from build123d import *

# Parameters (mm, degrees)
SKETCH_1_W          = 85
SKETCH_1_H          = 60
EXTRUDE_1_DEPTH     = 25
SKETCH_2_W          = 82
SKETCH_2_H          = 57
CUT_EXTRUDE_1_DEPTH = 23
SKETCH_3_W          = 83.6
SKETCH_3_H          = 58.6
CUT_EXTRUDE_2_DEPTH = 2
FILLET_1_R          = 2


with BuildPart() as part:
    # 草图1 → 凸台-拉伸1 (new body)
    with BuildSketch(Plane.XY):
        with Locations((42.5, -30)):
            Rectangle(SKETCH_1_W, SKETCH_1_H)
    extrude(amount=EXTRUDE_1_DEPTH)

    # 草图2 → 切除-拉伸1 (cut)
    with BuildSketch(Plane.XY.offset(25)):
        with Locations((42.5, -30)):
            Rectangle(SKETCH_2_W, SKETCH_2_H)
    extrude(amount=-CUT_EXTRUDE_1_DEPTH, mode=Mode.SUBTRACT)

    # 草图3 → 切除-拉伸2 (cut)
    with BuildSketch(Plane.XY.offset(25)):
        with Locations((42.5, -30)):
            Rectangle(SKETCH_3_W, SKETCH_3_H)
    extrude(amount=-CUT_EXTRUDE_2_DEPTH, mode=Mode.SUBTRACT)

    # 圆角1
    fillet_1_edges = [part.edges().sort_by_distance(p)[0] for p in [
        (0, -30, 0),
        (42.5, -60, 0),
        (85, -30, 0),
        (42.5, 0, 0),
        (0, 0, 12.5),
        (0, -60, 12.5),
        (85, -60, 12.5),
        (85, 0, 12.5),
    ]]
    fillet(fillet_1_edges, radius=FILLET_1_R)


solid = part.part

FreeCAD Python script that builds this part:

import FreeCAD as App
import Part
import Sketcher

V = App.Vector


def edges_at(feature, points):
    """Names of the edges that pass closest to the given points."""
    edges = feature.Shape.Edges
    near = lambda p: min(range(len(edges)), key=lambda i: edges[i].distToShape(Part.Vertex(*p))[0])
    return sorted({f"Edge{near(p) + 1}" for p in points})


def add_polygon(sketch, points):
    """Adds a closed chain of lines whose ends are joined by coincident constraints."""
    first, n = sketch.GeometryCount, len(points)
    for a, b in zip(points, points[1:] + points[:1]):
        sketch.addGeometry(Part.LineSegment(App.Vector(*a, 0), App.Vector(*b, 0)), False)
    for i in range(n):
        sketch.addConstraint(Sketcher.Constraint("Coincident", first + i, 2, first + (i + 1) % n, 1))

doc = App.newDocument("Part")
body = doc.addObject("PartDesign::Body", "Body")

# Sketch on XY plane
sketch1 = body.newObject("Sketcher::SketchObject", "Sketch")
sketch1.AttachmentSupport = (doc.getObject("XY_Plane"), [""])
sketch1.MapMode = "FlatFace"
add_polygon(sketch1, [(0, 0), (0, -60), (85, -60), (85, 0)])  # lines 0-3
sketch1.addConstraint([
    Sketcher.Constraint("Vertical", 0),
    Sketcher.Constraint("Horizontal", 1),
    Sketcher.Constraint("Vertical", 2),
    Sketcher.Constraint("Horizontal", 3),
    Sketcher.Constraint("Coincident", 3, 2, -1, 1),
    Sketcher.Constraint("DistanceX", 1, 1, 1, 2, 85.0),
    Sketcher.Constraint("DistanceY", 0, 2, 0, 1, 60.0),
])
pad1 = body.newObject("PartDesign::Pad", "Pad")
pad1.Profile = sketch1
pad1.Length = 25

# Sketch on XY plane
sketch2 = body.newObject("Sketcher::SketchObject", "Sketch001")
sketch2.AttachmentSupport = (doc.getObject("XY_Plane"), [""])
sketch2.MapMode = "FlatFace"
sketch2.AttachmentOffset = App.Placement(V(0, 0, 25), App.Rotation())
add_polygon(sketch2, [(1.5, -1.5), (1.5, -58.5), (83.5, -58.5), (83.5, -1.5)])  # lines 0-3
sketch2.addConstraint([
    Sketcher.Constraint("Vertical", 0),
    Sketcher.Constraint("Horizontal", 1),
    Sketcher.Constraint("Vertical", 2),
    Sketcher.Constraint("Horizontal", 3),
    Sketcher.Constraint("DistanceX", 1, 1, 1, 2, 82.0),
    Sketcher.Constraint("DistanceY", 0, 2, 0, 1, 57.0),
    Sketcher.Constraint("DistanceX", -1, 1, 0, 2, 1.5),
    Sketcher.Constraint("DistanceY", 0, 2, -1, 1, 58.5),
])
pocket1 = body.newObject("PartDesign::Pocket", "Pocket")
pocket1.Profile = sketch2
pocket1.Length = 23

# Sketch on XY plane
sketch3 = body.newObject("Sketcher::SketchObject", "Sketch002")
sketch3.AttachmentSupport = (doc.getObject("XY_Plane"), [""])
sketch3.MapMode = "FlatFace"
sketch3.AttachmentOffset = App.Placement(V(0, 0, 25), App.Rotation())
add_polygon(sketch3, [(0.7, -0.7), (0.7, -59.3), (84.3, -59.3), (84.3, -0.7)])  # lines 0-3
sketch3.addConstraint([
    Sketcher.Constraint("Vertical", 0),
    Sketcher.Constraint("Horizontal", 1),
    Sketcher.Constraint("Vertical", 2),
    Sketcher.Constraint("Horizontal", 3),
    Sketcher.Constraint("DistanceX", 1, 1, 1, 2, 83.6),
    Sketcher.Constraint("DistanceY", 0, 2, 0, 1, 58.6),
    Sketcher.Constraint("DistanceX", -1, 1, 0, 2, 0.7),
    Sketcher.Constraint("DistanceY", 0, 2, -1, 1, 59.3),
])
pocket2 = body.newObject("PartDesign::Pocket", "Pocket001")
pocket2.Profile = sketch3
pocket2.Length = 2
doc.recompute()

fillet = body.newObject("PartDesign::Fillet", "Fillet")
fillet.Base = (pocket2, edges_at(pocket2, [
    (0, -30, 0),
    (42.5, -60, 0),
    (85, -30, 0),
    (42.5, 0, 0),
    (0, 0, 12.5),
    (0, -60, 12.5),
    (85, -60, 12.5),
    (85, 0, 12.5),
]))
fillet.Radius = 2

doc.recompute()
